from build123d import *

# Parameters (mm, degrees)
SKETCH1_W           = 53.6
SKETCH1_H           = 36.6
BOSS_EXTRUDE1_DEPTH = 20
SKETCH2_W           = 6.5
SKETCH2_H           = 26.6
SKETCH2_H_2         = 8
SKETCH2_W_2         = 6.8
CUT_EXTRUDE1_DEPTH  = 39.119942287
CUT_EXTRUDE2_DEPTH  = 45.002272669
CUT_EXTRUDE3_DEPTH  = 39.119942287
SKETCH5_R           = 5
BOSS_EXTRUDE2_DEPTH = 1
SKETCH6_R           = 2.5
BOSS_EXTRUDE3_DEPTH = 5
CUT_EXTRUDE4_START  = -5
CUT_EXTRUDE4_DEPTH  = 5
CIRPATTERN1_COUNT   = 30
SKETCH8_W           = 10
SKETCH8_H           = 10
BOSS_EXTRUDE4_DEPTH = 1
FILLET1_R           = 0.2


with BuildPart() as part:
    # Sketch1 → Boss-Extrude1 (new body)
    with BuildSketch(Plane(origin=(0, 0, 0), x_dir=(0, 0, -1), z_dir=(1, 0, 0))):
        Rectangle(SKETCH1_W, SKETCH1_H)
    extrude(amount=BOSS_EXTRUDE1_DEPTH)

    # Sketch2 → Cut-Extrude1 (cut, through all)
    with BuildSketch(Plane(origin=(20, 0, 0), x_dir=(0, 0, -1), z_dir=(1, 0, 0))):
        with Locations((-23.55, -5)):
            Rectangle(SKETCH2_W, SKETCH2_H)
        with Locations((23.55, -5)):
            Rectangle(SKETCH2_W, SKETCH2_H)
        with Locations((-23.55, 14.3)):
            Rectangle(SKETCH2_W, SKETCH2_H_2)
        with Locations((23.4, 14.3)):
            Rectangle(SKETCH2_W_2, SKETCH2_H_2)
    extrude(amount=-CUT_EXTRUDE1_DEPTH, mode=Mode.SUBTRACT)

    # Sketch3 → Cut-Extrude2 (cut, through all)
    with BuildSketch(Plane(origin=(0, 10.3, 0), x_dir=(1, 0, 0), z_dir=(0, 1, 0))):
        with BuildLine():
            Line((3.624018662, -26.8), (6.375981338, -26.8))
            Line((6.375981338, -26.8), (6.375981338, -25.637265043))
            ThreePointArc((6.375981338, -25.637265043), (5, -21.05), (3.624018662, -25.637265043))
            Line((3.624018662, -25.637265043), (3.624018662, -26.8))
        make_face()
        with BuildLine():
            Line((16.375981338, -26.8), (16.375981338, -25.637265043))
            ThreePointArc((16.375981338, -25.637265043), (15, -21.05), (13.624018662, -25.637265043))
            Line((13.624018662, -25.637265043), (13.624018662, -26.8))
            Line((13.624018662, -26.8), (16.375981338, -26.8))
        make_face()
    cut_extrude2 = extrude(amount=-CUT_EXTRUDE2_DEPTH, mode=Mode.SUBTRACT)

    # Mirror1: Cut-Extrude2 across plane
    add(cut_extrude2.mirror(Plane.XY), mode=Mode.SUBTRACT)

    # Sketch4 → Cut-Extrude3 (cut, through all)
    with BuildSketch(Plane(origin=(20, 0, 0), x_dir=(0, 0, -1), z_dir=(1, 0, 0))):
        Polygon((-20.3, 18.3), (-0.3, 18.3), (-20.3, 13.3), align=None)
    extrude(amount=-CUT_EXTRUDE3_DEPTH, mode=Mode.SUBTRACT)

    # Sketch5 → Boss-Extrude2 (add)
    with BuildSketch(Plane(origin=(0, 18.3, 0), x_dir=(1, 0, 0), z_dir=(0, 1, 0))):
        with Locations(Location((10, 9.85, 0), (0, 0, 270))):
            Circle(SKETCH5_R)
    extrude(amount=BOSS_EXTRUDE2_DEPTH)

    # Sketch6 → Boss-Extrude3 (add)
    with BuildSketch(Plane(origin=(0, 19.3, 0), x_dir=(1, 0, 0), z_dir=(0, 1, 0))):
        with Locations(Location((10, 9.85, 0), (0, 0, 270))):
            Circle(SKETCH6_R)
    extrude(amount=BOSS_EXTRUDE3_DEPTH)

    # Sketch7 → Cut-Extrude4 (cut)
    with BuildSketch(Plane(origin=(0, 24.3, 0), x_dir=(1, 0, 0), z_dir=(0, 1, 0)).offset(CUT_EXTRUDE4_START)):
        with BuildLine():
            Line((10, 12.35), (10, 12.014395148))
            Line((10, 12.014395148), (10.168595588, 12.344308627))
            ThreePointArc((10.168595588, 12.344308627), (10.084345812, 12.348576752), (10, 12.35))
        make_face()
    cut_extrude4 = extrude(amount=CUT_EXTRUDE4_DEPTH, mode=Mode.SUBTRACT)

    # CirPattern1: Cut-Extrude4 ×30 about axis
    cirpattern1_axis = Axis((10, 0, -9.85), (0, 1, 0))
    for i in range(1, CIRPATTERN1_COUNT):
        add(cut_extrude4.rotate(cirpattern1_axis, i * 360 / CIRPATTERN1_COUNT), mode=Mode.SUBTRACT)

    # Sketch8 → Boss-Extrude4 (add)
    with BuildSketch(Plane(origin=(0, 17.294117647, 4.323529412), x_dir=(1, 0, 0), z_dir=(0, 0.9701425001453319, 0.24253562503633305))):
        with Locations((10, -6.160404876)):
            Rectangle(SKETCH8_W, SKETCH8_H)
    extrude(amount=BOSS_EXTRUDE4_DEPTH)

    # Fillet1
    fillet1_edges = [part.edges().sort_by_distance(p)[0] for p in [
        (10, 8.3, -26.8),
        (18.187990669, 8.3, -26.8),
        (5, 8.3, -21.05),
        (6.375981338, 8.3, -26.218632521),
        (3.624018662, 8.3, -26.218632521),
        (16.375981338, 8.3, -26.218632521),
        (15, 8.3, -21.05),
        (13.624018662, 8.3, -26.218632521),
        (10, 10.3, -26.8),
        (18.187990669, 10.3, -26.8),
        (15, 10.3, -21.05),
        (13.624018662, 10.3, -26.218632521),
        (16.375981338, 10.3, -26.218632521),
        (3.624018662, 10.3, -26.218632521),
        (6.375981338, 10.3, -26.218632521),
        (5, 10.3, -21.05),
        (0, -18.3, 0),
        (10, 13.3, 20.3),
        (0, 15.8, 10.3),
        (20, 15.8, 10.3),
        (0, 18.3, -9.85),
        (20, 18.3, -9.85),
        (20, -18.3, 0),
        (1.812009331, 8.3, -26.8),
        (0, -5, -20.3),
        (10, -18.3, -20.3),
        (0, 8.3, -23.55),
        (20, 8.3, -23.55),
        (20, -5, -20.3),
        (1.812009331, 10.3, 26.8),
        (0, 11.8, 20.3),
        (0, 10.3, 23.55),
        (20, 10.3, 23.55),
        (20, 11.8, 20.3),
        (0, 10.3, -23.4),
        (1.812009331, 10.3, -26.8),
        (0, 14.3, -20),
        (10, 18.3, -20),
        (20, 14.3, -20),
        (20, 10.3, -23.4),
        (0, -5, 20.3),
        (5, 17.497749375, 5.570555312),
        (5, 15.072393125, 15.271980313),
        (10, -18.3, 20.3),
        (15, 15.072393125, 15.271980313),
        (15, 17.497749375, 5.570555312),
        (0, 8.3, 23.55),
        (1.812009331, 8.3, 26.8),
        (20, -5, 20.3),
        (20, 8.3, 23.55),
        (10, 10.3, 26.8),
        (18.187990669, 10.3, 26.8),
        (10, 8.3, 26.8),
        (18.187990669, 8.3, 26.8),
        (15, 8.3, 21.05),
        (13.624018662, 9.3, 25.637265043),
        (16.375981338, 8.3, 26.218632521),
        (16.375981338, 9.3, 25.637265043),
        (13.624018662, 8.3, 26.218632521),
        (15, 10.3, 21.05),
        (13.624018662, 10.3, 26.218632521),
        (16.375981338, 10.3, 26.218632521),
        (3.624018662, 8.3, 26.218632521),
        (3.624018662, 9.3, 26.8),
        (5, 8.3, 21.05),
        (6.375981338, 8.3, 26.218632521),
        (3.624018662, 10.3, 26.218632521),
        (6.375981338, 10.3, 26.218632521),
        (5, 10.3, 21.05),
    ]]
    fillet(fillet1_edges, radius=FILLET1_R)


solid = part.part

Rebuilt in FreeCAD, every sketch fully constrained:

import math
import FreeCAD as App
import Part
import Sketcher
from FreeCAD import Vector
Q = App.Units.Quantity


def edges_at(feature, points):
    """Names of the edges that pass closest to the given points."""
    edges = feature.Shape.Edges
    near = lambda p: min(range(len(edges)), key=lambda i: edges[i].distToShape(Part.Vertex(*p))[0])
    return sorted({f"Edge{near(p) + 1}" for p in points})

doc = App.newDocument("Part")
body = doc.addObject("PartDesign::Body", "Body")

sketch1 = body.newObject("Sketcher::SketchObject", "Sketch")
sketch1.AttachmentSupport = (doc.getObject("YZ_Plane"), [""])
sketch1.MapMode = "FlatFace"
sketch1.addGeometry(Part.LineSegment(Vector(18, 27, 0), Vector(-18, 27, 0)), False)
sketch1.addGeometry(Part.LineSegment(Vector(-18, 27, 0), Vector(-18, -27, 0)), False)
sketch1.addGeometry(Part.LineSegment(Vector(-18, -27, 0), Vector(18, -27, 0)), False)
sketch1.addGeometry(Part.LineSegment(Vector(18, -27, 0), Vector(18, 27, 0)), False)
sketch1.addConstraint(Sketcher.Constraint("Coincident", 0, 2, 1, 1))
sketch1.addConstraint(Sketcher.Constraint("Coincident", 1, 2, 2, 1))
sketch1.addConstraint(Sketcher.Constraint("Coincident", 2, 2, 3, 1))
sketch1.addConstraint(Sketcher.Constraint("Coincident", 3, 2, 0, 1))
sketch1.addConstraint(Sketcher.Constraint("Horizontal", 0))
sketch1.addConstraint(Sketcher.Constraint("Vertical", 1))
sketch1.addConstraint(Sketcher.Constraint("Horizontal", 2))
sketch1.addConstraint(Sketcher.Constraint("Vertical", 3))
sketch1.addConstraint(Sketcher.Constraint("Symmetric", 0, 2, 2, 2, -1, 1))
sketch1.addConstraint(Sketcher.Constraint("DistanceX", 0, 2, 0, 1, Q("36.6 mm")))
sketch1.addConstraint(Sketcher.Constraint("DistanceY", 1, 2, 1, 1, Q("53.6 mm")))
pad1 = body.newObject("PartDesign::Pad", "Pad")
pad1.Profile = sketch1
pad1.Length = 20

sketch2 = body.newObject("Sketcher::SketchObject", "Sketch001")
sketch2.AttachmentSupport = (doc.getObject("YZ_Plane"), [""])
sketch2.MapMode = "FlatFace"
sketch2.AttachmentOffset = App.Placement(Vector(0, 0, 20), App.Rotation())
sketch2.addGeometry(Part.LineSegment(Vector(8, 27, 0), Vector(-18, 27, 0)), False)
sketch2.addGeometry(Part.LineSegment(Vector(-18, 27, 0), Vector(-18, 20, 0)), False)
sketch2.addGeometry(Part.LineSegment(Vector(-18, 20, 0), Vector(8, 20, 0)), False)
sketch2.addGeometry(Part.LineSegment(Vector(8, 20, 0), Vector(8, 27, 0)), False)
sketch2.addGeometry(Part.LineSegment(Vector(8, -20, 0), Vector(-18, -20, 0)), False)
sketch2.addGeometry(Part.LineSegment(Vector(-18, -20, 0), Vector(-18, -27, 0)), False)
sketch2.addGeometry(Part.LineSegment(Vector(-18, -27, 0), Vector(8, -27, 0)), False)
sketch2.addGeometry(Part.LineSegment(Vector(8, -27, 0), Vector(8, -20, 0)), False)
sketch2.addGeometry(Part.LineSegment(Vector(18, 27, 0), Vector(10, 27, 0)), False)
sketch2.addGeometry(Part.LineSegment(Vector(10, 27, 0), Vector(10, 20, 0)), False)
sketch2.addGeometry(Part.LineSegment(Vector(10, 20, 0), Vector(18, 20, 0)), False)
sketch2.addGeometry(Part.LineSegment(Vector(18, 20, 0), Vector(18, 27, 0)), False)
sketch2.addGeometry(Part.LineSegment(Vector(18, -20, 0), Vector(10, -20, 0)), False)
sketch2.addGeometry(Part.LineSegment(Vector(10, -20, 0), Vector(10, -27, 0)), False)
sketch2.addGeometry(Part.LineSegment(Vector(10, -27, 0), Vector(18, -27, 0)), False)
sketch2.addGeometry(Part.LineSegment(Vector(18, -27, 0), Vector(18, -20, 0)), False)
sketch2.addConstraint(Sketcher.Constraint("Coincident", 0, 2, 1, 1))
sketch2.addConstraint(Sketcher.Constraint("Coincident", 1, 2, 2, 1))
sketch2.addConstraint(Sketcher.Constraint("Coincident", 2, 2, 3, 1))
sketch2.addConstraint(Sketcher.Constraint("Coincident", 3, 2, 0, 1))
sketch2.addConstraint(Sketcher.Constraint("Coincident", 4, 2, 5, 1))
sketch2.addConstraint(Sketcher.Constraint("Coincident", 5, 2, 6, 1))
sketch2.addConstraint(Sketcher.Constraint("Coincident", 6, 2, 7, 1))
sketch2.addConstraint(Sketcher.Constraint("Coincident", 7, 2, 4, 1))
sketch2.addConstraint(Sketcher.Constraint("Coincident", 8, 2, 9, 1))
sketch2.addConstraint(Sketcher.Constraint("Coincident", 9, 2, 10, 1))
sketch2.addConstraint(Sketcher.Constraint("Coincident", 10, 2, 11, 1))
sketch2.addConstraint(Sketcher.Constraint("Coincident", 11, 2, 8, 1))
sketch2.addConstraint(Sketcher.Constraint("Coincident", 12, 2, 13, 1))
sketch2.addConstraint(Sketcher.Constraint("Coincident", 13, 2, 14, 1))
sketch2.addConstraint(Sketcher.Constraint("Coincident", 14, 2, 15, 1))
sketch2.addConstraint(Sketcher.Constraint("Coincident", 15, 2, 12, 1))
sketch2.addConstraint(Sketcher.Constraint("Horizontal", 0))
sketch2.addConstraint(Sketcher.Constraint("Vertical", 1))
sketch2.addConstraint(Sketcher.Constraint("Horizontal", 2))
sketch2.addConstraint(Sketcher.Constraint("Vertical", 3))
sketch2.addConstraint(Sketcher.Constraint("Horizontal", 4))
sketch2.addConstraint(Sketcher.Constraint("Vertical", 5))
sketch2.addConstraint(Sketcher.Constraint("Horizontal", 6))
sketch2.addConstraint(Sketcher.Constraint("Vertical", 7))
sketch2.addConstraint(Sketcher.Constraint("Horizontal", 8))
sketch2.addConstraint(Sketcher.Constraint("Vertical", 9))
sketch2.addConstraint(Sketcher.Constraint("Horizontal", 10))
sketch2.addConstraint(Sketcher.Constraint("Vertical", 11))
sketch2.addConstraint(Sketcher.Constraint("Horizontal", 12))
sketch2.addConstraint(Sketcher.Constraint("Vertical", 13))
sketch2.addConstraint(Sketcher.Constraint("Horizontal", 14))
sketch2.addConstraint(Sketcher.Constraint("Vertical", 15))
sketch2.addConstraint(Sketcher.Constraint("Symmetric", 4, 2, 10, 2, -1, 1))
sketch2.addConstraint(Sketcher.Constraint("Symmetric", 0, 2, 14, 2, -1, 1))
sketch2.addConstraint(Sketcher.Constraint("Symmetric", 1, 2, 10, 2, -2))
sketch2.addConstraint(Sketcher.Constraint("Symmetric", 3, 2, 6, 2, -1))
sketch2.addConstraint(Sketcher.Constraint("Symmetric", 8, 2, 13, 2, -1))
sketch2.addConstraint(Sketcher.Constraint("DistanceX", 8, 2, 8, 1, Q("8 mm")))
sketch2.addConstraint(Sketcher.Constraint("DistanceX", 0, 2, 0, 1, Q("26.6 mm")))
sketch2.addConstraint(Sketcher.Constraint("DistanceY", 1, 2, 1, 1, Q("6.5 mm")))
sketch2.addConstraint(Sketcher.Constraint("DistanceY", 13, 2, 13, 1, Q("6.8 mm")))
sketch2.addConstraint(Sketcher.Constraint("DistanceY", 12, 2, -1, 1, Q("20 mm")))
sketch2.addConstraint(Sketcher.Constraint("DistanceX", 3, 2, 8, 2, Q("2 mm")))
pocket1 = body.newObject("PartDesign::Pocket", "Pocket")
pocket1.Profile = sketch2
pocket1.Type = "ThroughAll"

sketch3 = body.newObject("Sketcher::SketchObject", "Sketch002")
sketch3.AttachmentSupport = (doc.getObject("XZ_Plane"), [""])
sketch3.MapMode = "FlatFace"
sketch3.AttachmentOffset = App.Placement(Vector(0, 0, -10.3), App.Rotation())
sketch3.addGeometry(Part.LineSegment(Vector(3.6, 26.8, 0), Vector(6.4, 26.8, 0)), False)
sketch3.addGeometry(Part.LineSegment(Vector(6.4, 26.8, 0), Vector(6.4, 25.6, 0)), False)
sketch3.addGeometry(Part.ArcOfCircle(Part.Circle(Vector(5, 23.6, 0), Vector(0, 0, 1), 2.5), math.radians(123), math.radians(417)), False)
sketch3.addGeometry(Part.LineSegment(Vector(3.6, 25.6, 0), Vector(3.6, 26.8, 0)), False)
sketch3.addGeometry(Part.LineSegment(Vector(16.4, 26.8, 0), Vector(16.4, 25.6, 0)), False)
sketch3.addGeometry(Part.ArcOfCircle(Part.Circle(Vector(15, 23.6, 0), Vector(0, 0, 1), 2.5), math.radians(123), math.radians(417)), False)
sketch3.addGeometry(Part.LineSegment(Vector(13.6, 25.6, 0), Vector(13.6, 26.8, 0)), False)
sketch3.addGeometry(Part.LineSegment(Vector(13.6, 26.8, 0), Vector(16.4, 26.8, 0)), False)
sketch3.addConstraint(Sketcher.Constraint("Coincident", 0, 2, 1, 1))
sketch3.addConstraint(Sketcher.Constraint("Coincident", 1, 2, 2, 2))
sketch3.addConstraint(Sketcher.Constraint("Coincident", 2, 1, 3, 1))
sketch3.addConstraint(Sketcher.Constraint("Coincident", 3, 2, 0, 1))
sketch3.addConstraint(Sketcher.Constraint("Coincident", 4, 2, 5, 2))
sketch3.addConstraint(Sketcher.Constraint("Coincident", 5, 1, 6, 1))
sketch3.addConstraint(Sketcher.Constraint("Coincident", 6, 2, 7, 1))
sketch3.addConstraint(Sketcher.Constraint("Coincident", 7, 2, 4, 1))
sketch3.addConstraint(Sketcher.Constraint("Horizontal", 0))
sketch3.addConstraint(Sketcher.Constraint("Vertical", 1))
sketch3.addConstraint(Sketcher.Constraint("Vertical", 3))
sketch3.addConstraint(Sketcher.Constraint("Vertical", 4))
sketch3.addConstraint(Sketcher.Constraint("Vertical", 6))
sketch3.addConstraint(Sketcher.Constraint("Horizontal", 7))
sketch3.addConstraint(Sketcher.Constraint("Equal", 2, 5))
sketch3.addConstraint(Sketcher.Constraint("Horizontal", 2, 3, 5, 3))
sketch3.addConstraint(Sketcher.Constraint("Horizontal", 1, 2, 2, 1))
sketch3.addConstraint(Sketcher.Constraint("Horizontal", 2, 1, 4, 2))
sketch3.addConstraint(Sketcher.Constraint("Horizontal", 4, 2, 5, 1))
sketch3.addConstraint(Sketcher.Constraint("Horizontal", 3, 2, 6, 2))
sketch3.addConstraint(Sketcher.Constraint("Radius", 2, Q("2.5 mm")))
sketch3.addConstraint(Sketcher.Constraint("DistanceX", -1, 1, 2, 3, Q("5 mm")))
sketch3.addConstraint(Sketcher.Constraint("DistanceX", -1, 1, 5, 3, Q("15 mm")))
sketch3.addConstraint(Sketcher.Constraint("DistanceY", -1, 1, 0, 2, Q("26.8 mm")))
sketch3.addConstraint(Sketcher.Constraint("DistanceY", -1, 1, 2, 3, Q("23.55 mm")))
sketch3.addConstraint(Sketcher.Constraint("DistanceX", 0, 1, 0, 2, Q("2.751963 mm")))
pocket2 = body.newObject("PartDesign::Pocket", "Pocket001")
pocket2.Profile = sketch3
pocket2.Type = "ThroughAll"
pocket2.Reversed = True
doc.recompute()

mirrored = body.newObject("PartDesign::Mirrored", "Mirrored")
mirrored.Originals = [pocket2]
mirrored.MirrorPlane = (doc.getObject("XY_Plane"), [""])
body.Tip = mirrored

sketch4 = body.newObject("Sketcher::SketchObject", "Sketch003")
sketch4.AttachmentSupport = (doc.getObject("YZ_Plane"), [""])
sketch4.MapMode = "FlatFace"
sketch4.AttachmentOffset = App.Placement(Vector(0, 0, 20), App.Rotation())
sketch4.addGeometry(Part.LineSegment(Vector(18, 0, 0), Vector(18, 20, 0)), False)
sketch4.addGeometry(Part.LineSegment(Vector(18, 20, 0), Vector(13, 20, 0)), False)
sketch4.addGeometry(Part.LineSegment(Vector(13, 20, 0), Vector(18, 0, 0)), False)
sketch4.addConstraint(Sketcher.Constraint("Coincident", 0, 2, 1, 1))
sketch4.addConstraint(Sketcher.Constraint("Coincident", 1, 2, 2, 1))
sketch4.addConstraint(Sketcher.Constraint("Coincident", 2, 2, 0, 1))
sketch4.addConstraint(Sketcher.Constraint("Vertical", 0))
sketch4.addConstraint(Sketcher.Constraint("Horizontal", 1))
sketch4.addConstraint(Sketcher.Constraint("DistanceX", 1, 2, 1, 1, Q("5 mm")))
sketch4.addConstraint(Sketcher.Constraint("DistanceY", 0, 1, 0, 2, Q("20 mm")))
sketch4.addConstraint(Sketcher.Constraint("DistanceX", -1, 1, 0, 2, Q("18.3 mm")))
sketch4.addConstraint(Sketcher.Constraint("DistanceY", -1, 1, 0, 2, Q("20.3 mm")))
pocket3 = body.newObject("PartDesign::Pocket", "Pocket002")
pocket3.Profile = sketch4
pocket3.Type = "ThroughAll"

sketch5 = body.newObject("Sketcher::SketchObject", "Sketch004")
sketch5.AttachmentSupport = (doc.getObject("XZ_Plane"), [""])
sketch5.MapMode = "FlatFace"
sketch5.AttachmentOffset = App.Placement(Vector(0, 0, -18.3), App.Rotation())
sketch5.addGeometry(Part.Circle(Vector(10, -10, 0), Vector(0, 0, 1), 5), False)
sketch5.addConstraint(Sketcher.Constraint("Diameter", 0, Q("10 mm")))
sketch5.addConstraint(Sketcher.Constraint("DistanceX", -1, 1, 0, 3, Q("10 mm")))
sketch5.addConstraint(Sketcher.Constraint("DistanceY", 0, 3, -1, 1, Q("9.85 mm")))
pad2 = body.newObject("PartDesign::Pad", "Pad001")
pad2.Profile = sketch5
pad2.Length = 1
pad2.Reversed = True

sketch6 = body.newObject("Sketcher::SketchObject", "Sketch005")
sketch6.AttachmentSupport = (doc.getObject("XZ_Plane"), [""])
sketch6.MapMode = "FlatFace"
sketch6.AttachmentOffset = App.Placement(Vector(0, 0, -19.3), App.Rotation())
sketch6.addGeometry(Part.Circle(Vector(10, -9.8, 0), Vector(0, 0, 1), 2.5), False)
sketch6.addConstraint(Sketcher.Constraint("Diameter", 0, Q("5 mm")))
sketch6.addConstraint(Sketcher.Constraint("DistanceX", -1, 1, 0, 3, Q("10 mm")))
sketch6.addConstraint(Sketcher.Constraint("DistanceY", 0, 3, -1, 1, Q("9.85 mm")))
pad3 = body.newObject("PartDesign::Pad", "Pad002")
pad3.Profile = sketch6
pad3.Length = 5
pad3.Reversed = True

sketch7 = body.newObject("Sketcher::SketchObject", "Sketch006")
sketch7.AttachmentSupport = (doc.getObject("XZ_Plane"), [""])
sketch7.MapMode = "FlatFace"
sketch7.AttachmentOffset = App.Placement(Vector(0, 0, -19.3), App.Rotation())
sketch7.addGeometry(Part.LineSegment(Vector(10, -12.35, 0), Vector(10, -12.01, 0)), False)
sketch7.addGeometry(Part.LineSegment(Vector(10, -12.01, 0), Vector(10.17, -12.34, 0)), False)
sketch7.addGeometry(Part.ArcOfCircle(Part.Circle(Vector(10, -9.85, 0), Vector(0, 0, 1), 2.5), math.radians(-90), math.radians(-86.13)), False)
sketch7.addConstraint(Sketcher.Constraint("Coincident", 0, 2, 1, 1))
sketch7.addConstraint(Sketcher.Constraint("Coincident", 1, 2, 2, 2))
sketch7.addConstraint(Sketcher.Constraint("Coincident", 2, 1, 0, 1))
sketch7.addConstraint(Sketcher.Constraint("Vertical", 0))
sketch7.addConstraint(Sketcher.Constraint("Vertical", 2, 3, 0, 2))
sketch7.addConstraint(Sketcher.Constraint("Radius", 2, Q("2.499999 mm")))
sketch7.addConstraint(Sketcher.Constraint("DistanceX", -1, 1, 2, 3, Q("10 mm")))
sketch7.addConstraint(Sketcher.Constraint("DistanceY", 2, 3, -1, 1, Q("9.850001 mm")))
sketch7.addConstraint(Sketcher.Constraint("DistanceY", 0, 1, 0, 2, Q("0.335605 mm")))
sketch7.addConstraint(Sketcher.Constraint("DistanceY", 1, 2, -1, 1, Q("12.344309 mm")))
pocket4 = body.newObject("PartDesign::Pocket", "Pocket003")
pocket4.Profile = sketch7
pocket4.Length = 5
doc.recompute()

datumline = body.newObject("PartDesign::Line", "DatumLine")
datumline.Placement = App.Placement(Vector(10, 0, -9.85), App.Rotation(Vector(0, 0, 1), Vector(0, 1, 0)))
polarpattern = body.newObject("PartDesign::PolarPattern", "PolarPattern")
polarpattern.Originals = [pocket4]
polarpattern.Axis = (datumline, [""])
polarpattern.Angle = 360
polarpattern.Occurrences = 30
body.Tip = polarpattern

sketch8 = body.newObject("Sketcher::SketchObject", "Sketch007")
sketch8.Placement = App.Placement(Vector(0, 17.294118, 4.323529), App.Rotation(Vector(1, 0, 0), Vector(0, 0.242535625, -0.9701425), Vector(0, 0.9701425, 0.242535625), "ZXY"))
sketch8.addGeometry(Part.LineSegment(Vector(5, -1, 0), Vector(5, -11, 0)), False)
sketch8.addGeometry(Part.LineSegment(Vector(5, -11, 0), Vector(15, -11, 0)), False)
sketch8.addGeometry(Part.LineSegment(Vector(15, -11, 0), Vector(15, -1, 0)), False)
sketch8.addGeometry(Part.LineSegment(Vector(15, -1, 0), Vector(5, -1, 0)), False)
sketch8.addConstraint(Sketcher.Constraint("Coincident", 0, 2, 1, 1))
sketch8.addConstraint(Sketcher.Constraint("Coincident", 1, 2, 2, 1))
sketch8.addConstraint(Sketcher.Constraint("Coincident", 2, 2, 3, 1))
sketch8.addConstraint(Sketcher.Constraint("Coincident", 3, 2, 0, 1))
sketch8.addConstraint(Sketcher.Constraint("Vertical", 0))
sketch8.addConstraint(Sketcher.Constraint("Horizontal", 1))
sketch8.addConstraint(Sketcher.Constraint("Vertical", 2))
sketch8.addConstraint(Sketcher.Constraint("Horizontal", 3))
sketch8.addConstraint(Sketcher.Constraint("Equal", 3, 0))
sketch8.addConstraint(Sketcher.Constraint("DistanceX", 1, 1, 1, 2, Q("10 mm")))
sketch8.addConstraint(Sketcher.Constraint("DistanceX", -1, 1, 0, 2, Q("5 mm")))
sketch8.addConstraint(Sketcher.Constraint("DistanceY", 0, 2, -1, 1, Q("11.160405 mm")))
pad4 = body.newObject("PartDesign::Pad", "Pad003")
pad4.Profile = sketch8
pad4.Length = 1
doc.recompute()

fillet = body.newObject("PartDesign::Fillet", "Fillet")
fillet.Base = (pad4, edges_at(pad4, [
    (10, 8.3, -26.8),
    (18.188, 8.3, -26.8),
    (5, 8.3, -21.05),
    (6.376, 8.3, -26.219),
    (3.624, 8.3, -26.219),
    (16.376, 8.3, -26.219),
    (15, 8.3, -21.05),
    (13.624, 8.3, -26.219),
    (10, 10.3, -26.8),
    (18.188, 10.3, -26.8),
    (15, 10.3, -21.05),
    (13.624, 10.3, -26.219),
    (16.376, 10.3, -26.219),
    (3.624, 10.3, -26.219),
    (6.376, 10.3, -26.219),
    (5, 10.3, -21.05),
    (0, -18.3, 0),
    (10, 13.3, 20.3),
    (0, 15.8, 10.3),
    (20, 15.8, 10.3),
    (0, 18.3, -9.85),
    (20, 18.3, -9.85),
    (20, -18.3, 0),
    (1.812, 8.3, -26.8),
    (0, -5, -20.3),
    (10, -18.3, -20.3),
    (0, 8.3, -23.55),
    (20, 8.3, -23.55),
    (20, -5, -20.3),
    (1.812, 10.3, 26.8),
    (0, 11.8, 20.3),
    (0, 10.3, 23.55),
    (20, 10.3, 23.55),
    (20, 11.8, 20.3),
    (0, 10.3, -23.4),
    (1.812, 10.3, -26.8),
    (0, 14.3, -20),
    (10, 18.3, -20),
    (20, 14.3, -20),
    (20, 10.3, -23.4),
    (0, -5, 20.3),
    (5, 17.498, 5.571),
    (5, 15.072, 15.272),
    (10, -18.3, 20.3),
    (15, 15.072, 15.272),
    (15, 17.498, 5.571),
    (0, 8.3, 23.55),
    (1.812, 8.3, 26.8),
    (20, -5, 20.3),
    (20, 8.3, 23.55),
    (10, 10.3, 26.8),
    (18.188, 10.3, 26.8),
    (10, 8.3, 26.8),
    (18.188, 8.3, 26.8),
    (15, 8.3, 21.05),
    (13.624, 9.3, 25.637),
    (16.376, 8.3, 26.219),
    (16.376, 9.3, 25.637),
    (13.624, 8.3, 26.219),
    (15, 10.3, 21.05),
    (13.624, 10.3, 26.219),
    (16.376, 10.3, 26.219),
    (3.624, 8.3, 26.219),
    (3.624, 9.3, 26.8),
    (5, 8.3, 21.05),
    (6.376, 8.3, 26.219),
    (3.624, 10.3, 26.219),
    (6.376, 10.3, 26.219),
    (5, 10.3, 21.05),
]))
fillet.Radius = 0.2

doc.recompute()
